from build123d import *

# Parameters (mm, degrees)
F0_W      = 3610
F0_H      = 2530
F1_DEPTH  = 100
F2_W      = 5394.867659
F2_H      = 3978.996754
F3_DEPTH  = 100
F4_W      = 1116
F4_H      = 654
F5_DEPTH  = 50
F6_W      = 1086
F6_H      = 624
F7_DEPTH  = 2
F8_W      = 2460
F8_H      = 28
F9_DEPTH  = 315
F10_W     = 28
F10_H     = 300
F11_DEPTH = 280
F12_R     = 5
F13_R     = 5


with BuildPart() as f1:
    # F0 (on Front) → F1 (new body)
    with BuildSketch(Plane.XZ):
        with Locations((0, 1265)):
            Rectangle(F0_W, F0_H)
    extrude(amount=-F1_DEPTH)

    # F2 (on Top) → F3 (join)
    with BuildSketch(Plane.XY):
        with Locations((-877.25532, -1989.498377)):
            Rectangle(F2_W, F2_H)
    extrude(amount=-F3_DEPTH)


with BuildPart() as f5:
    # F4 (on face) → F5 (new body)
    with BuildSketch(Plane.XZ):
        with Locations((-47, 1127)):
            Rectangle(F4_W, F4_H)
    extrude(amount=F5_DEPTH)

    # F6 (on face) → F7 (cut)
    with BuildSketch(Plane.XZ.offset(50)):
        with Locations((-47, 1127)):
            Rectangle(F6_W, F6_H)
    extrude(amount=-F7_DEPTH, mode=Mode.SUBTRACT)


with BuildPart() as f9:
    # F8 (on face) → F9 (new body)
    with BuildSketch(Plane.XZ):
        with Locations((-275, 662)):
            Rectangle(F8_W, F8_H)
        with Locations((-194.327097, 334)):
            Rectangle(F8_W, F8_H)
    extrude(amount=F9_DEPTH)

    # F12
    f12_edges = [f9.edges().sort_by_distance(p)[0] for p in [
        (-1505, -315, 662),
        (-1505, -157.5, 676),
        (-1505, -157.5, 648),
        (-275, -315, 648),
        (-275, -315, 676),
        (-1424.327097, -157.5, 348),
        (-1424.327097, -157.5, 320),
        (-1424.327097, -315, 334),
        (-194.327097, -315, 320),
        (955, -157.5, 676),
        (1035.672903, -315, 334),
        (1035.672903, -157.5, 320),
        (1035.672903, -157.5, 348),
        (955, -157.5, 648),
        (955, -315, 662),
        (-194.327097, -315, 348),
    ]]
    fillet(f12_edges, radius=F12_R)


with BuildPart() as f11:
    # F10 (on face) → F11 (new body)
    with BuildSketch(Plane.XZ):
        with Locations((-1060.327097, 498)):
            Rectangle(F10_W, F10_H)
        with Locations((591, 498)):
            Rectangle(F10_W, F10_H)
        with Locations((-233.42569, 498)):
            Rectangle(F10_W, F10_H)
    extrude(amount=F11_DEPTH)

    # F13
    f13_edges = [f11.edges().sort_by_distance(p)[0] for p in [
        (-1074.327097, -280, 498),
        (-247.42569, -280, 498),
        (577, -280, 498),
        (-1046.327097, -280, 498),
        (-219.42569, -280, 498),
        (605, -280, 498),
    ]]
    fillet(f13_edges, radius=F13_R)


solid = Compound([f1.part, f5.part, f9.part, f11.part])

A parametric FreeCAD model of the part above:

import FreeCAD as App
import Part
import Sketcher


def edges_at(feature, points):
    """Names of the edges that pass closest to the given points."""
    edges = feature.Shape.Edges
    near = lambda p: min(range(len(edges)), key=lambda i: edges[i].distToShape(Part.Vertex(*p))[0])
    return sorted({f"Edge{near(p) + 1}" for p in points})

doc = App.newDocument("Part")
body = doc.addObject("PartDesign::Body", "Body")
body.AllowCompound = True

# Sketch on XZ plane
sketch1 = doc.addObject("Sketcher::SketchObject", "Sketch")
body.addObject(sketch1)
sketch1.AttachmentSupport = (doc.XZ_Plane, [""])
sketch1.MapMode = "FlatFace"
sketch1.addGeometry([
    Part.LineSegment(App.Vector(-1805, 2530, 0), App.Vector(-1805, 0, 0)),
    Part.LineSegment(App.Vector(-1805, 0, 0), App.Vector(1805, 0, 0)),
    Part.LineSegment(App.Vector(1805, 0, 0), App.Vector(1805, 2530, 0)),
    Part.LineSegment(App.Vector(1805, 2530, 0), App.Vector(-1805, 2530, 0)),
], False)
sketch1.addConstraint([
    Sketcher.Constraint("Coincident", 0, 2, 1, 1),
    Sketcher.Constraint("Coincident", 1, 2, 2, 1),
    Sketcher.Constraint("Coincident", 2, 2, 3, 1),
    Sketcher.Constraint("Coincident", 3, 2, 0, 1),
    Sketcher.Constraint("Vertical", 0),
    Sketcher.Constraint("Horizontal", 1),
    Sketcher.Constraint("Vertical", 2),
    Sketcher.Constraint("Horizontal", 3),
    Sketcher.Constraint("Symmetric", 0, 2, 1, 2, -1, 1),
    Sketcher.Constraint("DistanceX", 1, 1, 1, 2, 3610.0),
    Sketcher.Constraint("DistanceY", 0, 2, 0, 1, 2530.0),
])
pad1 = doc.addObject("PartDesign::Pad", "Pad")
body.addObject(pad1)
pad1.Profile = sketch1
pad1.Length = 100
pad1.Reversed = True

# Sketch on XY plane
sketch2 = doc.addObject("Sketcher::SketchObject", "Sketch001")
body.addObject(sketch2)
sketch2.AttachmentSupport = (doc.XY_Plane, [""])
sketch2.MapMode = "FlatFace"
sketch2.addGeometry([
    Part.LineSegment(App.Vector(-3575, 0, 0), App.Vector(-3575, -3979, 0)),
    Part.LineSegment(App.Vector(-3575, -3979, 0), App.Vector(1820, -3979, 0)),
    Part.LineSegment(App.Vector(1820, -3979, 0), App.Vector(1820, 0, 0)),
    Part.LineSegment(App.Vector(1820, 0, 0), App.Vector(-3575, 0, 0)),
], False)
sketch2.addConstraint([
    Sketcher.Constraint("Coincident", 0, 2, 1, 1),
    Sketcher.Constraint("Coincident", 1, 2, 2, 1),
    Sketcher.Constraint("Coincident", 2, 2, 3, 1),
    Sketcher.Constraint("Coincident", 3, 2, 0, 1),
    Sketcher.Constraint("Vertical", 0),
    Sketcher.Constraint("Horizontal", 1),
    Sketcher.Constraint("Vertical", 2),
    Sketcher.Constraint("Horizontal", 3),
    Sketcher.Constraint("PointOnObject", 2, 2, -1),
    Sketcher.Constraint("DistanceX", 1, 1, 1, 2, 5394.867659),
    Sketcher.Constraint("DistanceY", 0, 2, 0, 1, 3978.996754),
    Sketcher.Constraint("DistanceX", 0, 2, -1, 1, 3574.689149),
])
pad2 = doc.addObject("PartDesign::Pad", "Pad001")
body.addObject(pad2)
pad2.Profile = sketch2
pad2.Length = 100
pad2.Reversed = True
body2 = doc.addObject("PartDesign::Body", "Body001")

# Sketch on XZ plane
sketch3 = doc.addObject("Sketcher::SketchObject", "Sketch002")
body2.addObject(sketch3)
sketch3.AttachmentSupport = (doc.getObject("XZ_Plane001"), [""])
sketch3.MapMode = "FlatFace"
sketch3.addGeometry([
    Part.LineSegment(App.Vector(-605, 1454, 0), App.Vector(-605, 800, 0)),
    Part.LineSegment(App.Vector(-605, 800, 0), App.Vector(511, 800, 0)),
    Part.LineSegment(App.Vector(511, 800, 0), App.Vector(511, 1454, 0)),
    Part.LineSegment(App.Vector(511, 1454, 0), App.Vector(-605, 1454, 0)),
], False)
sketch3.addConstraint([
    Sketcher.Constraint("Coincident", 0, 2, 1, 1),
    Sketcher.Constraint("Coincident", 1, 2, 2, 1),
    Sketcher.Constraint("Coincident", 2, 2, 3, 1),
    Sketcher.Constraint("Coincident", 3, 2, 0, 1),
    Sketcher.Constraint("Vertical", 0),
    Sketcher.Constraint("Horizontal", 1),
    Sketcher.Constraint("Vertical", 2),
    Sketcher.Constraint("Horizontal", 3),
    Sketcher.Constraint("DistanceX", 1, 1, 1, 2, 1116.0),
    Sketcher.Constraint("DistanceY", 0, 2, 0, 1, 654.0),
    Sketcher.Constraint("DistanceX", 0, 2, -1, 1, 605.0),
    Sketcher.Constraint("DistanceY", -1, 1, 0, 2, 800.0),
])
pad3 = doc.addObject("PartDesign::Pad", "Pad002")
body2.addObject(pad3)
pad3.Profile = sketch3
pad3.Length = 50

# Sketch on XZ plane
sketch4 = doc.addObject("Sketcher::SketchObject", "Sketch003")
body2.addObject(sketch4)
sketch4.AttachmentSupport = (doc.getObject("XZ_Plane001"), [""])
sketch4.MapMode = "FlatFace"
sketch4.AttachmentOffset = App.Placement(App.Vector(0, 0, 50), App.Rotation())
sketch4.addGeometry([
    Part.LineSegment(App.Vector(-590, 1439, 0), App.Vector(-590, 815, 0)),
    Part.LineSegment(App.Vector(-590, 815, 0), App.Vector(496, 815, 0)),
    Part.LineSegment(App.Vector(496, 815, 0), App.Vector(496, 1439, 0)),
    Part.LineSegment(App.Vector(496, 1439, 0), App.Vector(-590, 1439, 0)),
], False)
sketch4.addConstraint([
    Sketcher.Constraint("Coincident", 0, 2, 1, 1),
    Sketcher.Constraint("Coincident", 1, 2, 2, 1),
    Sketcher.Constraint("Coincident", 2, 2, 3, 1),
    Sketcher.Constraint("Coincident", 3, 2, 0, 1),
    Sketcher.Constraint("Vertical", 0),
    Sketcher.Constraint("Horizontal", 1),
    Sketcher.Constraint("Vertical", 2),
    Sketcher.Constraint("Horizontal", 3),
    Sketcher.Constraint("DistanceX", 1, 1, 1, 2, 1086.0),
    Sketcher.Constraint("DistanceY", 0, 2, 0, 1, 624.0),
    Sketcher.Constraint("DistanceX", 0, 2, -1, 1, 590.0),
    Sketcher.Constraint("DistanceY", -1, 1, 0, 2, 815.0),
])
pocket1 = doc.addObject("PartDesign::Pocket", "Pocket")
body2.addObject(pocket1)
pocket1.Profile = sketch4
pocket1.Length = 2
body3 = doc.addObject("PartDesign::Body", "Body002")
body3.AllowCompound = True

# Sketch on XZ plane
sketch5 = doc.addObject("Sketcher::SketchObject", "Sketch004")
body3.addObject(sketch5)
sketch5.AttachmentSupport = (doc.getObject("XZ_Plane002"), [""])
sketch5.MapMode = "FlatFace"
sketch5.addGeometry([
    Part.LineSegment(App.Vector(-1505, 676, 0), App.Vector(-1505, 648, 0)),  # 0
    Part.LineSegment(App.Vector(-1505, 648, 0), App.Vector(955, 648, 0)),  # 1
    Part.LineSegment(App.Vector(955, 648, 0), App.Vector(955, 676, 0)),  # 2
    Part.LineSegment(App.Vector(955, 676, 0), App.Vector(-1505, 676, 0)),  # 3
    Part.LineSegment(App.Vector(-1424, 348, 0), App.Vector(-1424, 320, 0)),  # 4
    Part.LineSegment(App.Vector(-1424, 320, 0), App.Vector(1036, 320, 0)),  # 5
    Part.LineSegment(App.Vector(1036, 320, 0), App.Vector(1036, 348, 0)),  # 6
    Part.LineSegment(App.Vector(1036, 348, 0), App.Vector(-1424, 348, 0)),  # 7
], False)
sketch5.addConstraint([
    Sketcher.Constraint("Coincident", 0, 2, 1, 1),
    Sketcher.Constraint("Coincident", 1, 2, 2, 1),
    Sketcher.Constraint("Coincident", 2, 2, 3, 1),
    Sketcher.Constraint("Coincident", 3, 2, 0, 1),
    Sketcher.Constraint("Coincident", 4, 2, 5, 1),
    Sketcher.Constraint("Coincident", 5, 2, 6, 1),
    Sketcher.Constraint("Coincident", 6, 2, 7, 1),
    Sketcher.Constraint("Coincident", 7, 2, 4, 1),
    Sketcher.Constraint("Vertical", 0),
    Sketcher.Constraint("Horizontal", 1),
    Sketcher.Constraint("Vertical", 2),
    Sketcher.Constraint("Horizontal", 3),
    Sketcher.Constraint("Vertical", 4),
    Sketcher.Constraint("Horizontal", 5),
    Sketcher.Constraint("Vertical", 6),
    Sketcher.Constraint("Horizontal", 7),
    Sketcher.Constraint("Equal", 3, 5),
    Sketcher.Constraint("Equal", 2, 4),
    Sketcher.Constraint("DistanceX", 1, 1, 1, 2, 2460.0),
    Sketcher.Constraint("DistanceY", 0, 2, 0, 1, 28.0),
    Sketcher.Constraint("DistanceX", 0, 2, -1, 1, 1505.0),
    Sketcher.Constraint("DistanceY", -1, 1, 0, 2, 648.0),
    Sketcher.Constraint("DistanceY", -1, 1, 4, 2, 320.0),
    Sketcher.Constraint("DistanceX", 4, 2, -1, 1, 1424.327097),
])
pad4 = doc.addObject("PartDesign::Pad", "Pad003")
body3.addObject(pad4)
pad4.Profile = sketch5
pad4.Length = 315
doc.recompute()

fillet = doc.addObject("PartDesign::Fillet", "Fillet")
body3.addObject(fillet)
fillet.Base = (pad4, edges_at(pad4, [
    (-1505, -315, 662),
    (-1505, -157.5, 676),
    (-1505, -157.5, 648),
    (-275, -315, 648),
    (-275, -315, 676),
    (-1424.327, -157.5, 348),
    (-1424.327, -157.5, 320),
    (-1424.327, -315, 334),
    (-194.327, -315, 320),
    (955, -157.5, 676),
    (1035.673, -315, 334),
    (1035.673, -157.5, 320),
    (1035.673, -157.5, 348),
    (955, -157.5, 648),
    (955, -315, 662),
    (-194.327, -315, 348),
]))
fillet.Radius = 5
body4 = doc.addObject("PartDesign::Body", "Body003")
body4.AllowCompound = True

# Sketch on XZ plane
sketch6 = doc.addObject("Sketcher::SketchObject", "Sketch005")
body4.addObject(sketch6)
sketch6.AttachmentSupport = (doc.getObject("XZ_Plane003"), [""])
sketch6.MapMode = "FlatFace"
sketch6.addGeometry([
    Part.LineSegment(App.Vector(-1074, 648, 0), App.Vector(-1074, 348, 0)),  # 0
    Part.LineSegment(App.Vector(-1074, 348, 0), App.Vector(-1046, 348, 0)),  # 1
    Part.LineSegment(App.Vector(-1046, 348, 0), App.Vector(-1046, 648, 0)),  # 2
    Part.LineSegment(App.Vector(-1046, 648, 0), App.Vector(-1074, 648, 0)),  # 3
    Part.LineSegment(App.Vector(577, 648, 0), App.Vector(577, 348, 0)),  # 4
    Part.LineSegment(App.Vector(577, 348, 0), App.Vector(605, 348, 0)),  # 5
    Part.LineSegment(App.Vector(605, 348, 0), App.Vector(605, 648, 0)),  # 6
    Part.LineSegment(App.Vector(605, 648, 0), App.Vector(577, 648, 0)),  # 7
    Part.LineSegment(App.Vector(-247, 648, 0), App.Vector(-247, 348, 0)),  # 8
    Part.LineSegment(App.Vector(-247, 348, 0), App.Vector(-219, 348, 0)),  # 9
    Part.LineSegment(App.Vector(-219, 348, 0), App.Vector(-219, 648, 0)),  # 10
    Part.LineSegment(App.Vector(-219, 648, 0), App.Vector(-247, 648, 0)),  # 11
], False)
sketch6.addConstraint([
    Sketcher.Constraint("Coincident", 0, 2, 1, 1),
    Sketcher.Constraint("Coincident", 1, 2, 2, 1),
    Sketcher.Constraint("Coincident", 2, 2, 3, 1),
    Sketcher.Constraint("Coincident", 3, 2, 0, 1),
    Sketcher.Constraint("Coincident", 4, 2, 5, 1),
    Sketcher.Constraint("Coincident", 5, 2, 6, 1),
    Sketcher.Constraint("Coincident", 6, 2, 7, 1),
    Sketcher.Constraint("Coincident", 7, 2, 4, 1),
    Sketcher.Constraint("Coincident", 8, 2, 9, 1),
    Sketcher.Constraint("Coincident", 9, 2, 10, 1),
    Sketcher.Constraint("Coincident", 10, 2, 11, 1),
    Sketcher.Constraint("Coincident", 11, 2, 8, 1),
    Sketcher.Constraint("Vertical", 0),
    Sketcher.Constraint("Horizontal", 1),
    Sketcher.Constraint("Vertical", 2),
    Sketcher.Constraint("Horizontal", 3),
    Sketcher.Constraint("Vertical", 4),
    Sketcher.Constraint("Horizontal", 5),
    Sketcher.Constraint("Vertical", 6),
    Sketcher.Constraint("Horizontal", 7),
    Sketcher.Constraint("Vertical", 8),
    Sketcher.Constraint("Horizontal", 9),
    Sketcher.Constraint("Vertical", 10),
    Sketcher.Constraint("Horizontal", 11),
    Sketcher.Constraint("Horizontal", 1, 2, 4, 2),
    Sketcher.Constraint("Horizontal", 3, 2, 6, 2),
    Sketcher.Constraint("Horizontal", 5, 2, 8, 2),
    Sketcher.Constraint("Horizontal", 7, 2, 10, 2),
    Sketcher.Constraint("Equal", 3, 5),
    Sketcher.Constraint("Equal", 7, 9),
    Sketcher.Constraint("DistanceX", 1, 1, 1, 2, 28.0),
    Sketcher.Constraint("DistanceY", 0, 2, 0, 1, 300.0),
    Sketcher.Constraint("DistanceY", -1, 1, 0, 2, 348.0),
    Sketcher.Constraint("DistanceX", -1, 1, 4, 2, 577.0),
    Sketcher.Constraint("DistanceX", 8, 2, -1, 1, 247.42569),
    Sketcher.Constraint("DistanceX", 0, 2, -1, 1, 1074.327097),
])
pad5 = doc.addObject("PartDesign::Pad", "Pad004")
body4.addObject(pad5)
pad5.Profile = sketch6
pad5.Length = 280
doc.recompute()

fillet2 = doc.addObject("PartDesign::Fillet", "Fillet001")
body4.addObject(fillet2)
fillet2.Base = (pad5, edges_at(pad5, [
    (-1074.327, -280, 498),
    (-247.426, -280, 498),
    (577, -280, 498),
    (-1046.327, -280, 498),
    (-219.426, -280, 498),
    (605, -280, 498),
]))
fillet2.Radius = 5

doc.recompute()
